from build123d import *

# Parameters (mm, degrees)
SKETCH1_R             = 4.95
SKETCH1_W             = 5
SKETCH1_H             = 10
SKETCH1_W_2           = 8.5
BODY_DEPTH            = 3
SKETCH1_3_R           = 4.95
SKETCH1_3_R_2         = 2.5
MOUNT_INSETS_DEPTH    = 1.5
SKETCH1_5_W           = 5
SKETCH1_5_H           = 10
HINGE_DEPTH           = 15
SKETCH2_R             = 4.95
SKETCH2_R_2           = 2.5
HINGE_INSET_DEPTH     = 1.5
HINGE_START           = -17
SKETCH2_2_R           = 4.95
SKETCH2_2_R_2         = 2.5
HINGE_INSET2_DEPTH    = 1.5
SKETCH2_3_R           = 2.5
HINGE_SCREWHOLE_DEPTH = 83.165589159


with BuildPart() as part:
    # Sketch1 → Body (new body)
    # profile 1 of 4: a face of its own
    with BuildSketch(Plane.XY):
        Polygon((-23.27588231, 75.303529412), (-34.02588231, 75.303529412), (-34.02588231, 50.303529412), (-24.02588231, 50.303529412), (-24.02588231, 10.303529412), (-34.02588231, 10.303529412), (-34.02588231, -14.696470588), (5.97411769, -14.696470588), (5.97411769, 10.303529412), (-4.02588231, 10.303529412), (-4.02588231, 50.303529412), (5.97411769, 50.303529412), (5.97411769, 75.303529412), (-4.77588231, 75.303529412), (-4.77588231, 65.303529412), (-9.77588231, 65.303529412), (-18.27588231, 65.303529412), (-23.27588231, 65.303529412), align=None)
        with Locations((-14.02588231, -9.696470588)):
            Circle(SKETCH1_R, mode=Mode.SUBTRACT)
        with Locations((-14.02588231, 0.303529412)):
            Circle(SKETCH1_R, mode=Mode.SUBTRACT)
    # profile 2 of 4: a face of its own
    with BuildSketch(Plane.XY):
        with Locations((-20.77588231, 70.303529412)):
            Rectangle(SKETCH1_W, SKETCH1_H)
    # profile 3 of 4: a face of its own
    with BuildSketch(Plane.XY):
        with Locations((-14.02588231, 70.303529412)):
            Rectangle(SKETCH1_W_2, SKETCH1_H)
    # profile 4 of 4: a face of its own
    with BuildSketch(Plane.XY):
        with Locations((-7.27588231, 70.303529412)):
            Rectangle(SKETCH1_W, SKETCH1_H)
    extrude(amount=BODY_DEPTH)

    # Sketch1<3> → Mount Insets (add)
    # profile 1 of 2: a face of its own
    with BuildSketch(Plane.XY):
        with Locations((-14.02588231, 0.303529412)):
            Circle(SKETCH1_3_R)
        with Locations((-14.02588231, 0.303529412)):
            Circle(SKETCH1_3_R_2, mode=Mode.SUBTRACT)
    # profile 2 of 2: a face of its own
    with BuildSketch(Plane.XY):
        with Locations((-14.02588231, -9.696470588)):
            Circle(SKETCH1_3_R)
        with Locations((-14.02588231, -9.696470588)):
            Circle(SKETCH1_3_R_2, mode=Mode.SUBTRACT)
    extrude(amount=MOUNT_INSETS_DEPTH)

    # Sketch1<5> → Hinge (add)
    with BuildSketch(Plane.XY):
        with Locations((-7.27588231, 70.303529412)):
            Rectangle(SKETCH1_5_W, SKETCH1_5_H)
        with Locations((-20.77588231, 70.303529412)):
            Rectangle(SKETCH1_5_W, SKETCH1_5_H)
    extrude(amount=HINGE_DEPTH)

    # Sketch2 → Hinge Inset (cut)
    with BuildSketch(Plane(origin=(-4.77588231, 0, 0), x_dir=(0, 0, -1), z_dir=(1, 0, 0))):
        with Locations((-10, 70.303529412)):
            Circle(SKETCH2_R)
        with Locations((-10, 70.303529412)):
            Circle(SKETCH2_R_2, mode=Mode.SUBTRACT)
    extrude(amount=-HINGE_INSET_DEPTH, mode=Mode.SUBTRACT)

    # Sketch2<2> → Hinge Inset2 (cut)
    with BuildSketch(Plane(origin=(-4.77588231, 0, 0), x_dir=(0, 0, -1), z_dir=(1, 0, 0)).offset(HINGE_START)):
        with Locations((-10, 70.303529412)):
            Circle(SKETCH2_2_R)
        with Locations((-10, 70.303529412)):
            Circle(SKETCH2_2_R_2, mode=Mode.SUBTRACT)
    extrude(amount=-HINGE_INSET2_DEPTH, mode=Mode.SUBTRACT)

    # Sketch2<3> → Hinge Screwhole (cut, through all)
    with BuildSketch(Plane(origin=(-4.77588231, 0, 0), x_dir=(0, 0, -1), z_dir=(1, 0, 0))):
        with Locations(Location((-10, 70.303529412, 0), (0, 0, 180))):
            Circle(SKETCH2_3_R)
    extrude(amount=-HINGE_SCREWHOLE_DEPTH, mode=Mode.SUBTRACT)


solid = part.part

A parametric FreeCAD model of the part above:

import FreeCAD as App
import Part
import Sketcher
from FreeCAD import Vector


def add_polygon(sketch, points):
    """Adds a closed chain of lines whose ends are joined by coincident constraints."""
    first, n = sketch.GeometryCount, len(points)
    for a, b in zip(points, points[1:] + points[:1]):
        sketch.addGeometry(Part.LineSegment(App.Vector(*a, 0), App.Vector(*b, 0)), False)
    for i in range(n):
        sketch.addConstraint(Sketcher.Constraint("Coincident", first + i, 2, first + (i + 1) % n, 1))

doc = App.newDocument("Part")
body = doc.addObject("PartDesign::Body", "Body")

# Sketch on XY plane
sketch1 = doc.addObject("Sketcher::SketchObject", "Sketch")
body.addObject(sketch1)
sketch1.AttachmentSupport = (doc.XY_Plane, [""])
sketch1.MapMode = "FlatFace"
add_polygon(sketch1, [(-34.025882, 75.303529), (-34.025882, 50.303529), (-24.025882, 50.303529), (-24.025882, 10.303529), (-34.025882, 10.303529), (-34.025882, -14.696471), (5.974118, -14.696471), (5.974118, 10.303529), (-4.025882, 10.303529), (-4.025882, 50.303529), (5.974118, 50.303529), (5.974118, 75.303529)])  # lines 0-11
sketch1.addGeometry(Part.Circle(Vector(-14.025882, -9.696471, 0), Vector(0, 0, 1), 4.95), False)  # 12
sketch1.addGeometry(Part.Circle(Vector(-14.025882, 0.303529, 0), Vector(0, 0, 1), 4.95), False)  # 13
sketch1.addConstraint([
    Sketcher.Constraint("Vertical", 0),
    Sketcher.Constraint("Horizontal", 1),
    Sketcher.Constraint("Vertical", 2),
    Sketcher.Constraint("Horizontal", 3),
    Sketcher.Constraint("Vertical", 4),
    Sketcher.Constraint("Horizontal", 5),
    Sketcher.Constraint("Vertical", 6),
    Sketcher.Constraint("Horizontal", 7),
    Sketcher.Constraint("Vertical", 8),
    Sketcher.Constraint("Horizontal", 9),
    Sketcher.Constraint("Vertical", 10),
    Sketcher.Constraint("Horizontal", 11),
    Sketcher.Constraint("Equal", 12, 13),
    Sketcher.Constraint("Horizontal", 3, 2, 6, 2),
    Sketcher.Constraint("Horizontal", 1, 2, 8, 2),
    Sketcher.Constraint("Vertical", 12, 3, 13, 3),
    Sketcher.Constraint("Vertical", 0, 2, 3, 2),
    Sketcher.Constraint("Vertical", 6, 2, 9, 2),
    Sketcher.Constraint("Equal", 3, 7),
    Sketcher.Constraint("Equal", 11, 2),
    Sketcher.Constraint("Equal", 0, 4),
    Sketcher.Constraint("Diameter", 12, 9.9),
    Sketcher.Constraint("DistanceX", 1, 1, 1, 2, 10.0),
    Sketcher.Constraint("DistanceX", 5, 1, 5, 2, 40.0),
    Sketcher.Constraint("DistanceY", 0, 2, 0, 1, 25.0),
    Sketcher.Constraint("DistanceY", 12, 3, 13, 3, 10.0),
    Sketcher.Constraint("DistanceX", 0, 2, 13, 3, 20.0),
    Sketcher.Constraint("DistanceY", 13, 3, 0, 2, 50.0),
    Sketcher.Constraint("DistanceY", 12, 3, -1, 1, 9.696471),
    Sketcher.Constraint("DistanceX", 12, 3, -1, 1, 14.025882),
])
pad1 = doc.addObject("PartDesign::Pad", "Pad")
body.addObject(pad1)
pad1.Profile = sketch1
pad1.Length = 3

# Sketch on XY plane
sketch2 = doc.addObject("Sketcher::SketchObject", "Sketch001")
body.addObject(sketch2)
sketch2.AttachmentSupport = (doc.XY_Plane, [""])
sketch2.MapMode = "FlatFace"
sketch2.addGeometry([
    Part.Circle(Vector(-14.025882, 0.303529, 0), Vector(0, 0, 1), 4.95),
    Part.Circle(Vector(-14.025882, 0.303529, 0), Vector(0, 0, 1), 2.5),
    Part.Circle(Vector(-14.025882, -9.696471, 0), Vector(0, 0, 1), 4.95),
    Part.Circle(Vector(-14.025882, -9.696471, 0), Vector(0, 0, 1), 2.5),
], False)
sketch2.addConstraint([
    Sketcher.Constraint("Coincident", 1, 3, 0, 3),
    Sketcher.Constraint("Coincident", 3, 3, 2, 3),
    Sketcher.Constraint("Equal", 0, 2),
    Sketcher.Constraint("Equal", 1, 3),
    Sketcher.Constraint("Vertical", 1, 3, 2, 3),
    Sketcher.Constraint("Diameter", 1, 5.0),
    Sketcher.Constraint("Diameter", 0, 9.9),
    Sketcher.Constraint("DistanceY", 2, 3, 0, 3, 10.0),
    Sketcher.Constraint("DistanceY", -1, 1, 0, 3, 0.303529),
    Sketcher.Constraint("DistanceX", 0, 3, -1, 1, 14.025882),
])
pad2 = doc.addObject("PartDesign::Pad", "Pad001")
body.addObject(pad2)
pad2.Profile = sketch2
pad2.Length = 1.5

# Sketch on XY plane
sketch3 = doc.addObject("Sketcher::SketchObject", "Sketch002")
body.addObject(sketch3)
sketch3.AttachmentSupport = (doc.XY_Plane, [""])
sketch3.MapMode = "FlatFace"
add_polygon(sketch3, [(-9.775882, 75.303529), (-9.775882, 65.303529), (-4.775882, 65.303529), (-4.775882, 75.303529)])  # lines 0-3
add_polygon(sketch3, [(-23.275882, 75.303529), (-23.275882, 65.303529), (-18.275882, 65.303529), (-18.275882, 75.303529)])  # lines 4-7
sketch3.addConstraint([
    Sketcher.Constraint("Vertical", 0),
    Sketcher.Constraint("Horizontal", 1),
    Sketcher.Constraint("Vertical", 2),
    Sketcher.Constraint("Horizontal", 3),
    Sketcher.Constraint("Vertical", 4),
    Sketcher.Constraint("Horizontal", 5),
    Sketcher.Constraint("Vertical", 6),
    Sketcher.Constraint("Horizontal", 7),
    Sketcher.Constraint("Horizontal", 1, 2, 4, 2),
    Sketcher.Constraint("Horizontal", 3, 2, 6, 2),
    Sketcher.Constraint("Equal", 3, 5),
    Sketcher.Constraint("DistanceX", 1, 1, 1, 2, 5.0),
    Sketcher.Constraint("DistanceY", 0, 2, 0, 1, 10.0),
    Sketcher.Constraint("DistanceX", 4, 2, 0, 2, 13.5),
    Sketcher.Constraint("DistanceY", -1, 1, 0, 2, 65.303529),
    Sketcher.Constraint("DistanceX", 0, 2, -1, 1, 9.775882),
])
pad3 = doc.addObject("PartDesign::Pad", "Pad002")
body.addObject(pad3)
pad3.Profile = sketch3
pad3.Length = 15

# Sketch on YZ plane
sketch4 = doc.addObject("Sketcher::SketchObject", "Sketch003")
body.addObject(sketch4)
sketch4.AttachmentSupport = (doc.YZ_Plane, [""])
sketch4.MapMode = "FlatFace"
sketch4.AttachmentOffset = App.Placement(Vector(0, 0, -4.775882), App.Rotation())
sketch4.addGeometry([
    Part.Circle(Vector(70.303529, 10, 0), Vector(0, 0, 1), 4.95),
    Part.Circle(Vector(70.303529, 10, 0), Vector(0, 0, 1), 2.5),
], False)
sketch4.addConstraint([
    Sketcher.Constraint("Coincident", 1, 3, 0, 3),
    Sketcher.Constraint("Diameter", 1, 5.0),
    Sketcher.Constraint("Diameter", 0, 9.9),
    Sketcher.Constraint("DistanceY", -1, 1, 0, 3, 10.0),
    Sketcher.Constraint("DistanceX", -1, 1, 0, 3, 70.303529),
])
pocket1 = doc.addObject("PartDesign::Pocket", "Pocket")
body.addObject(pocket1)
pocket1.Profile = sketch4
pocket1.Length = 1.5

# Sketch on YZ plane
sketch5 = doc.addObject("Sketcher::SketchObject", "Sketch004")
body.addObject(sketch5)
sketch5.AttachmentSupport = (doc.YZ_Plane, [""])
sketch5.MapMode = "FlatFace"
sketch5.AttachmentOffset = App.Placement(Vector(0, 0, -21.775882), App.Rotation())
sketch5.addGeometry([
    Part.Circle(Vector(70.303529, 10, 0), Vector(0, 0, 1), 4.95),
    Part.Circle(Vector(70.303529, 10, 0), Vector(0, 0, 1), 2.5),
], False)
sketch5.addConstraint([
    Sketcher.Constraint("Coincident", 1, 3, 0, 3),
    Sketcher.Constraint("Diameter", 1, 5.0),
    Sketcher.Constraint("Diameter", 0, 9.9),
    Sketcher.Constraint("DistanceY", -1, 1, 0, 3, 10.0),
    Sketcher.Constraint("DistanceX", -1, 1, 0, 3, 70.303529),
])
pocket2 = doc.addObject("PartDesign::Pocket", "Pocket001")
body.addObject(pocket2)
pocket2.Profile = sketch5
pocket2.Length = 1.5

# Sketch on YZ plane
sketch6 = doc.addObject("Sketcher::SketchObject", "Sketch005")
body.addObject(sketch6)
sketch6.AttachmentSupport = (doc.YZ_Plane, [""])
sketch6.MapMode = "FlatFace"
sketch6.AttachmentOffset = App.Placement(Vector(0, 0, -4.775882), App.Rotation())
sketch6.addGeometry(Part.Circle(Vector(70.303529, 10, 0), Vector(0, 0, 1), 2.5), False)
sketch6.addConstraint([
    Sketcher.Constraint("Diameter", 0, 5.0),
    Sketcher.Constraint("DistanceY", -1, 1, 0, 3, 10.0),
    Sketcher.Constraint("DistanceX", -1, 1, 0, 3, 70.303529),
])
pocket3 = doc.addObject("PartDesign::Pocket", "Pocket002")
body.addObject(pocket3)
pocket3.Profile = sketch6
pocket3.Type = "ThroughAll"

doc.recompute()
